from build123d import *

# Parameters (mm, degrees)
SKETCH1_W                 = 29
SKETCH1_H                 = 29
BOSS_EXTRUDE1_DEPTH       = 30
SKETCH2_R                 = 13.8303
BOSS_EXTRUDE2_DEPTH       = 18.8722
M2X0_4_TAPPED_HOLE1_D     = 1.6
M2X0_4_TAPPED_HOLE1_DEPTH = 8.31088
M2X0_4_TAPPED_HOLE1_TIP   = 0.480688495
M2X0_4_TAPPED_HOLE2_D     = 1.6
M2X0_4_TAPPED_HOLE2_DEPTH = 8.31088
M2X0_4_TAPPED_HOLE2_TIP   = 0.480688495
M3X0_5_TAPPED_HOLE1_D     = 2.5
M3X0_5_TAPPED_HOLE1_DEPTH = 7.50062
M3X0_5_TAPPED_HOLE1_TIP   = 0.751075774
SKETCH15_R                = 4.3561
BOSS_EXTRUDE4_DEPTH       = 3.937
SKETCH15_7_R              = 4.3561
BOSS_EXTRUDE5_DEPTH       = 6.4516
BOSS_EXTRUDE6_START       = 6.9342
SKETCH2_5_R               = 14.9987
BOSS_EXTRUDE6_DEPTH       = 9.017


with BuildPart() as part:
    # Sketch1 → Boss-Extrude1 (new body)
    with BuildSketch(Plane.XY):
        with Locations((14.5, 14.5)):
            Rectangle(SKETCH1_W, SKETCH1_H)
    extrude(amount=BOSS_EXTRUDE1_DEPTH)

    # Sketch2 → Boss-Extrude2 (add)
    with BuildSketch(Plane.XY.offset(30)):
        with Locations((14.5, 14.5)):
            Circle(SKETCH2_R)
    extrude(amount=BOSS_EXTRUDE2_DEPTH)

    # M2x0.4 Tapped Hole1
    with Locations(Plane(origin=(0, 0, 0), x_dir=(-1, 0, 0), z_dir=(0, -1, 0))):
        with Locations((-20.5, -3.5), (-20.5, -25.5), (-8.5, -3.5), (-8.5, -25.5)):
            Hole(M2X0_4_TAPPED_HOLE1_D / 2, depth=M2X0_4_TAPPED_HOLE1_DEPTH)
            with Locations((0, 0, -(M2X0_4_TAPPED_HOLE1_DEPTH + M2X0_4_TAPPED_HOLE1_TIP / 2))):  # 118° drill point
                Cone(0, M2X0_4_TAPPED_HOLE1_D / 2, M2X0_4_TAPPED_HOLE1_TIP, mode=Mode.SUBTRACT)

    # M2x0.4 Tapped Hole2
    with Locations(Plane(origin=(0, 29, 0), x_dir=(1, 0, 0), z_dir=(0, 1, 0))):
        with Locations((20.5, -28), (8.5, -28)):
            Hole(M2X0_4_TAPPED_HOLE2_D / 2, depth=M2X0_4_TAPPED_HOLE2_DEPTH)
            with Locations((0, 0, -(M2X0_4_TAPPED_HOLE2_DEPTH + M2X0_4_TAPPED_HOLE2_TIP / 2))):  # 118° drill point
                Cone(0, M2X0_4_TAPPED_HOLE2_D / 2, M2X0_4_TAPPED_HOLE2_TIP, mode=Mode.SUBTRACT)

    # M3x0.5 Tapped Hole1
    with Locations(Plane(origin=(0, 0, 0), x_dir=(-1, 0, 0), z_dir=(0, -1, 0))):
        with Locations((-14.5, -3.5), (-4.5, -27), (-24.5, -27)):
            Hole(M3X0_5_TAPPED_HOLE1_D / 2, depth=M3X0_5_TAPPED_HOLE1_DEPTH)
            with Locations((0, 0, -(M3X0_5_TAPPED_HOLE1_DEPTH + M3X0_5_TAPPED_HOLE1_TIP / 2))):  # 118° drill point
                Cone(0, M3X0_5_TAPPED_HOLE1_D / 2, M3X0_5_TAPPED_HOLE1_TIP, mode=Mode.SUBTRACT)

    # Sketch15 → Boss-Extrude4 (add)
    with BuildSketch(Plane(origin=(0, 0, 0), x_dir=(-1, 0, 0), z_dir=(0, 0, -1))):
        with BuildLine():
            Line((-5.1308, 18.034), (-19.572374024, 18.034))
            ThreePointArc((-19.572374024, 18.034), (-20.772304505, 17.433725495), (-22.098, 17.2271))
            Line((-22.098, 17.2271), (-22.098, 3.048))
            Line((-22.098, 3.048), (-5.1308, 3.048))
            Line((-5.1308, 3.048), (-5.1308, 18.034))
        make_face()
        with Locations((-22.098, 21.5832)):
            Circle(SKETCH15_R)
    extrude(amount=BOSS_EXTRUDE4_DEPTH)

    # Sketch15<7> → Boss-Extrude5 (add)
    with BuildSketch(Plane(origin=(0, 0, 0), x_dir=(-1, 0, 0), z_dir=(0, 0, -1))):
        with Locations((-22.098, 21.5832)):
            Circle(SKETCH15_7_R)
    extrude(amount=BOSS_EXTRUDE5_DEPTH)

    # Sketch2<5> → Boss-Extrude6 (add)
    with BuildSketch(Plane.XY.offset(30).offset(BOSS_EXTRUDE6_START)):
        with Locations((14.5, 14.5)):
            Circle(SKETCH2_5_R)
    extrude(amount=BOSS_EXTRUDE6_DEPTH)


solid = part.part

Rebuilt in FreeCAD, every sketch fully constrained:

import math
import FreeCAD as App
import Part
import Sketcher
Q = App.Units.Quantity

doc = App.newDocument("Part")
params = doc.addObject("Spreadsheet::Sheet", "Params")
for row, (alias, value) in enumerate([
    ("pad1_length", "30 mm"),
    ("sketch2_diameter", "1.089 in"),
    ("pad2_length", "0.743 in"),
    ("hole_diameter", "1.6 mm"),
    ("hole_depth", "0.3272 in"),
    ("hole2_diameter", "1.6 mm"),
    ("hole2_depth", "0.3272 in"),
    ("hole3_diameter", "2.5 mm"),
    ("hole3_depth", "0.2953 in"),
    ("sketch6_height", "0.59 in"),
    ("sketch6_width", "0.668 in"),
    ("pad3_length", "0.155 in"),
    ("sketch7_diameter", "0.343 in"),
    ("pad4_length", "0.254 in"),
    ("sketch8_diameter", "1.181 in"),
    ("pad5_length", "0.355 in"),
], start=1):
    params.set(f"A{row}", alias)
    params.set(f"B{row}", "=" + value)
    params.setAlias(f"B{row}", alias)

body = doc.addObject("PartDesign::Body", "Body")

# Sketch on XY plane
sketch1 = doc.addObject("Sketcher::SketchObject", "Sketch")
body.addObject(sketch1)
sketch1.AttachmentSupport = (doc.XY_Plane, [""])
sketch1.MapMode = "FlatFace"
sketch1.addGeometry([
    Part.LineSegment(App.Vector(0, 29, 0), App.Vector(0, 0, 0)),
    Part.LineSegment(App.Vector(0, 0, 0), App.Vector(29, 0, 0)),
    Part.LineSegment(App.Vector(29, 0, 0), App.Vector(29, 29, 0)),
    Part.LineSegment(App.Vector(29, 29, 0), App.Vector(0, 29, 0)),
], False)
sketch1.addConstraint([
    Sketcher.Constraint("Coincident", 0, 2, 1, 1),
    Sketcher.Constraint("Coincident", 1, 2, 2, 1),
    Sketcher.Constraint("Coincident", 2, 2, 3, 1),
    Sketcher.Constraint("Coincident", 3, 2, 0, 1),
    Sketcher.Constraint("Vertical", 0),
    Sketcher.Constraint("Horizontal", 1),
    Sketcher.Constraint("Vertical", 2),
    Sketcher.Constraint("Horizontal", 3),
    Sketcher.Constraint("Coincident", 0, 2, -1, 1),
    Sketcher.Constraint("Equal", 3, 0),
    Sketcher.Constraint("DistanceX", 1, 1, 1, 2, 29.0),
])
pad1 = doc.addObject("PartDesign::Pad", "Pad")
body.addObject(pad1)
pad1.Profile = sketch1
pad1.setExpression("Length", "Params.pad1_length")

# Sketch on XY plane
sketch2 = doc.addObject("Sketcher::SketchObject", "Sketch001")
body.addObject(sketch2)
sketch2.AttachmentSupport = (doc.XY_Plane, [""])
sketch2.MapMode = "FlatFace"
sketch2.AttachmentOffset = App.Placement(App.Vector(0, 0, 30), App.Rotation())
sketch2.addGeometry(Part.Circle(App.Vector(14.5, 14.5, 0), App.Vector(0, 0, 1), 13.8303), False)
sketch2.addConstraint([
    Sketcher.Constraint("Diameter", 0, Q("1.089 in")),
    Sketcher.Constraint("DistanceX", -1, 1, 0, 3, 14.5),
    Sketcher.Constraint("DistanceY", -1, 1, 0, 3, 14.5),
])
sketch2.setExpression("Constraints[0]", "Params.sketch2_diameter")
pad2 = doc.addObject("PartDesign::Pad", "Pad001")
body.addObject(pad2)
pad2.Profile = sketch2
pad2.setExpression("Length", "Params.pad2_length")

# Sketch on XZ plane
sketch3 = doc.addObject("Sketcher::SketchObject", "Sketch002")
body.addObject(sketch3)
sketch3.AttachmentSupport = (doc.XZ_Plane, [""])
sketch3.MapMode = "FlatFace"
sketch3.addGeometry([
    Part.Circle(App.Vector(20.5, 3.5, 0), App.Vector(0, 0, 1), 0.8),
    Part.Circle(App.Vector(20.5, 25.5, 0), App.Vector(0, 0, 1), 0.8),
    Part.Circle(App.Vector(8.5, 3.5, 0), App.Vector(0, 0, 1), 0.8),
    Part.Circle(App.Vector(8.5, 25.5, 0), App.Vector(0, 0, 1), 0.8),
], False)
sketch3.addConstraint([
    Sketcher.Constraint("Equal", 0, 1),
    Sketcher.Constraint("Equal", 1, 2),
    Sketcher.Constraint("Equal", 2, 3),
    Sketcher.Constraint("Horizontal", 0, 3, 2, 3),
    Sketcher.Constraint("Horizontal", 1, 3, 3, 3),
    Sketcher.Constraint("Vertical", 0, 3, 1, 3),
    Sketcher.Constraint("Vertical", 2, 3, 3, 3),
    Sketcher.Constraint("Diameter", 0, 1.6),
    Sketcher.Constraint("DistanceX", -1, 1, 0, 3, 20.5),
    Sketcher.Constraint("DistanceY", -1, 1, 0, 3, 3.5),
    Sketcher.Constraint("DistanceY", -1, 1, 1, 3, 25.5),
    Sketcher.Constraint("DistanceX", -1, 1, 2, 3, 8.5),
])
doc.recompute()
hole = doc.addObject("PartDesign::Hole", "Hole")
body.addObject(hole)
hole.Profile = sketch3
hole.ThreadType = "None"
hole.setExpression("Diameter", "Params.hole_diameter")
hole.DepthType = "Dimension"
hole.setExpression("Depth", "Params.hole_depth")
hole.DrillPoint = "Angled"
hole.DrillPointAngle = 118

# Sketch on XZ plane
sketch4 = doc.addObject("Sketcher::SketchObject", "Sketch003")
body.addObject(sketch4)
sketch4.AttachmentSupport = (doc.XZ_Plane, [""])
sketch4.MapMode = "FlatFace"
sketch4.AttachmentOffset = App.Placement(App.Vector(0, 0, -29), App.Rotation())
sketch4.addGeometry([
    Part.Circle(App.Vector(20.5, 28, 0), App.Vector(0, 0, 1), 0.8),
    Part.Circle(App.Vector(8.5, 28, 0), App.Vector(0, 0, 1), 0.8),
], False)
sketch4.addConstraint([
    Sketcher.Constraint("Equal", 0, 1),
    Sketcher.Constraint("Horizontal", 0, 3, 1, 3),
    Sketcher.Constraint("Diameter", 0, 1.6),
    Sketcher.Constraint("DistanceX", -1, 1, 0, 3, 20.5),
    Sketcher.Constraint("DistanceY", -1, 1, 0, 3, 28.0),
    Sketcher.Constraint("DistanceX", -1, 1, 1, 3, 8.5),
])
doc.recompute()
hole2 = doc.addObject("PartDesign::Hole", "Hole001")
body.addObject(hole2)
hole2.Profile = sketch4
hole2.ThreadType = "None"
hole2.setExpression("Diameter", "Params.hole2_diameter")
hole2.DepthType = "Dimension"
hole2.setExpression("Depth", "Params.hole2_depth")
hole2.DrillPoint = "Angled"
hole2.DrillPointAngle = 118
hole2.Reversed = True

# Sketch on XZ plane
sketch5 = doc.addObject("Sketcher::SketchObject", "Sketch004")
body.addObject(sketch5)
sketch5.AttachmentSupport = (doc.XZ_Plane, [""])
sketch5.MapMode = "FlatFace"
sketch5.addGeometry([
    Part.Circle(App.Vector(14.5, 3.5, 0), App.Vector(0, 0, 1), 1.25),
    Part.Circle(App.Vector(4.5, 27, 0), App.Vector(0, 0, 1), 1.25),
    Part.Circle(App.Vector(24.5, 27, 0), App.Vector(0, 0, 1), 1.25),
], False)
sketch5.addConstraint([
    Sketcher.Constraint("Equal", 0, 1),
    Sketcher.Constraint("Equal", 1, 2),
    Sketcher.Constraint("Horizontal", 1, 3, 2, 3),
    Sketcher.Constraint("Diameter", 0, 2.5),
    Sketcher.Constraint("DistanceX", -1, 1, 0, 3, 14.5),
    Sketcher.Constraint("DistanceY", -1, 1, 0, 3, 3.5),
    Sketcher.Constraint("DistanceX", -1, 1, 1, 3, 4.5),
    Sketcher.Constraint("DistanceY", -1, 1, 1, 3, 27.0),
    Sketcher.Constraint("DistanceX", -1, 1, 2, 3, 24.5),
])
doc.recompute()
hole3 = doc.addObject("PartDesign::Hole", "Hole002")
body.addObject(hole3)
hole3.Profile = sketch5
hole3.ThreadType = "None"
hole3.setExpression("Diameter", "Params.hole3_diameter")
hole3.DepthType = "Dimension"
hole3.setExpression("Depth", "Params.hole3_depth")
hole3.DrillPoint = "Angled"
hole3.DrillPointAngle = 118

# Sketch on XY plane
sketch6 = doc.addObject("Sketcher::SketchObject", "Sketch005")
body.addObject(sketch6)
sketch6.AttachmentSupport = (doc.XY_Plane, [""])
sketch6.MapMode = "FlatFace"
sketch6.addGeometry([
    Part.LineSegment(App.Vector(5.1308, 18.034, 0), App.Vector(19.572374, 18.034, 0)),  # 0
    Part.ArcOfCircle(Part.Circle(App.Vector(22.098, 21.5832, 0), App.Vector(0, 0, 1), 4.3561), math.radians(-90), math.radians(234.564182)),  # 1
    Part.LineSegment(App.Vector(22.098, 17.2271, 0), App.Vector(22.098, 3.048, 0)),  # 2
    Part.LineSegment(App.Vector(22.098, 3.048, 0), App.Vector(5.1308, 3.048, 0)),  # 3
    Part.LineSegment(App.Vector(5.1308, 3.048, 0), App.Vector(5.1308, 18.034, 0)),  # 4
], False)
sketch6.addConstraint([
    Sketcher.Constraint("Coincident", 0, 2, 1, 2),
    Sketcher.Constraint("Coincident", 1, 1, 2, 1),
    Sketcher.Constraint("Coincident", 2, 2, 3, 1),
    Sketcher.Constraint("Coincident", 3, 2, 4, 1),
    Sketcher.Constraint("Coincident", 4, 2, 0, 1),
    Sketcher.Constraint("Horizontal", 0),
    Sketcher.Constraint("Vertical", 2),
    Sketcher.Constraint("Horizontal", 3),
    Sketcher.Constraint("Vertical", 4),
    Sketcher.Constraint("DistanceY", 4, 1, 4, 2, Q("0.59 in")),
    Sketcher.Constraint("Radius", 1, Q("0.1715 in")),
    Sketcher.Constraint("DistanceX", 3, 2, 3, 1, Q("0.668 in")),
    Sketcher.Constraint("DistanceX", -1, 1, 1, 3, Q("0.87 in")),
    Sketcher.Constraint("DistanceY", -1, 1, 0, 2, Q("0.71 in")),
    Sketcher.Constraint("DistanceX", -1, 1, 1, 1, Q("0.87 in")),
    Sketcher.Constraint("DistanceY", 2, 2, 2, 1, 14.1791),
])
sketch6.setExpression("Constraints[9]", "Params.sketch6_height")
sketch6.setExpression("Constraints[11]", "Params.sketch6_width")
pad3 = doc.addObject("PartDesign::Pad", "Pad002")
body.addObject(pad3)
pad3.Profile = sketch6
pad3.setExpression("Length", "Params.pad3_length")
pad3.Reversed = True

# Sketch on XY plane
sketch7 = doc.addObject("Sketcher::SketchObject", "Sketch006")
body.addObject(sketch7)
sketch7.AttachmentSupport = (doc.XY_Plane, [""])
sketch7.MapMode = "FlatFace"
sketch7.addGeometry(Part.Circle(App.Vector(22.098, 21.5832, 0), App.Vector(0, 0, 1), 4.3561), False)
sketch7.addConstraint([
    Sketcher.Constraint("Diameter", 0, Q("0.343 in")),
    Sketcher.Constraint("DistanceX", -1, 1, 0, 3, Q("0.87 in")),
    Sketcher.Constraint("DistanceY", -1, 1, 0, 3, 21.5832),
])
sketch7.setExpression("Constraints[0]", "Params.sketch7_diameter")
pad4 = doc.addObject("PartDesign::Pad", "Pad003")
body.addObject(pad4)
pad4.Profile = sketch7
pad4.setExpression("Length", "Params.pad4_length")
pad4.Reversed = True

# Sketch on XY plane
sketch8 = doc.addObject("Sketcher::SketchObject", "Sketch007")
body.addObject(sketch8)
sketch8.AttachmentSupport = (doc.XY_Plane, [""])
sketch8.MapMode = "FlatFace"
sketch8.AttachmentOffset = App.Placement(App.Vector(0, 0, 36.9342), App.Rotation())
sketch8.addGeometry(Part.Circle(App.Vector(14.5, 14.5, 0), App.Vector(0, 0, 1), 14.9987), False)
sketch8.addConstraint([
    Sketcher.Constraint("Diameter", 0, Q("1.181 in")),
    Sketcher.Constraint("DistanceX", -1, 1, 0, 3, 14.5),
    Sketcher.Constraint("DistanceY", -1, 1, 0, 3, 14.5),
])
sketch8.setExpression("Constraints[0]", "Params.sketch8_diameter")
pad5 = doc.addObject("PartDesign::Pad", "Pad004")
body.addObject(pad5)
pad5.Profile = sketch8
pad5.setExpression("Length", "Params.pad5_length")

doc.recompute()
